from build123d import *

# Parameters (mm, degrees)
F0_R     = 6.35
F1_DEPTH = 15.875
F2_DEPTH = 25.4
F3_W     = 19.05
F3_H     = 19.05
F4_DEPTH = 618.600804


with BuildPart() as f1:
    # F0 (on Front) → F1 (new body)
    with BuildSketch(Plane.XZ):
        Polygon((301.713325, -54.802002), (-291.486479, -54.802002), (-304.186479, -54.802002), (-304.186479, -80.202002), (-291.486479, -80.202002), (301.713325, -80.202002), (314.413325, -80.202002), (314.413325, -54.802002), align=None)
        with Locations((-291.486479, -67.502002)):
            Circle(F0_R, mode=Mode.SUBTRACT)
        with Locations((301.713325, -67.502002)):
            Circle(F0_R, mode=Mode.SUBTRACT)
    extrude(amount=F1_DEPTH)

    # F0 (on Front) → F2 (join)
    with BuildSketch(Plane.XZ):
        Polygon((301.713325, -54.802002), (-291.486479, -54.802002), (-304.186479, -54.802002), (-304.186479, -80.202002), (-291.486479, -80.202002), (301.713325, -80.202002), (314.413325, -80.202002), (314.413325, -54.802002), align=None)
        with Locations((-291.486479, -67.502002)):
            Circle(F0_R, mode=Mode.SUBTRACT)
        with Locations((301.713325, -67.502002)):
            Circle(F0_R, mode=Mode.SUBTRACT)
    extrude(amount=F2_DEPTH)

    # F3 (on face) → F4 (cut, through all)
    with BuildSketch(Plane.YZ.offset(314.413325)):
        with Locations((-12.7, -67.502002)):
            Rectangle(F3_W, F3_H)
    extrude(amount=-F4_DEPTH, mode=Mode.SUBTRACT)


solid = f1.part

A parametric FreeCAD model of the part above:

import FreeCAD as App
import Part
import Sketcher

V = App.Vector
Q = App.Units.Quantity

doc = App.newDocument("Part")
body = doc.addObject("PartDesign::Body", "Body")

sketch1 = body.newObject("Sketcher::SketchObject", "Sketch")
sketch1.AttachmentSupport = (doc.getObject("XZ_Plane"), [""])
sketch1.MapMode = "FlatFace"
sketch1.addGeometry(Part.LineSegment(V(-304, -55, 0), V(-304, -80, 0)), False)
sketch1.addGeometry(Part.LineSegment(V(-304, -80, 0), V(314, -80, 0)), False)
sketch1.addGeometry(Part.LineSegment(V(314, -80, 0), V(314, -55, 0)), False)
sketch1.addGeometry(Part.LineSegment(V(314, -55, 0), V(-304, -55, 0)), False)
sketch1.addGeometry(Part.Circle(V(-291, -68, 0), V(0, 0, 1), 6), False)
sketch1.addGeometry(Part.Circle(V(302, -68, 0), V(0, 0, 1), 6), False)
sketch1.addConstraint(Sketcher.Constraint("Coincident", 0, 2, 1, 1))
sketch1.addConstraint(Sketcher.Constraint("Coincident", 1, 2, 2, 1))
sketch1.addConstraint(Sketcher.Constraint("Coincident", 2, 2, 3, 1))
sketch1.addConstraint(Sketcher.Constraint("Coincident", 3, 2, 0, 1))
sketch1.addConstraint(Sketcher.Constraint("Vertical", 0))
sketch1.addConstraint(Sketcher.Constraint("Horizontal", 1))
sketch1.addConstraint(Sketcher.Constraint("Vertical", 2))
sketch1.addConstraint(Sketcher.Constraint("Horizontal", 3))
sketch1.addConstraint(Sketcher.Constraint("Equal", 4, 5))
sketch1.addConstraint(Sketcher.Constraint("Horizontal", 4, 3, 5, 3))
sketch1.addConstraint(Sketcher.Constraint("Diameter", 4, Q("0.5 in")))
sketch1.addConstraint(Sketcher.Constraint("DistanceY", 0, 2, 0, 1, Q("1 in")))
sketch1.addConstraint(Sketcher.Constraint("DistanceX", 0, 2, 4, 3, Q("0.5 in")))
sketch1.addConstraint(Sketcher.Constraint("DistanceY", 0, 2, 4, 3, Q("0.5 in")))
sketch1.addConstraint(Sketcher.Constraint("DistanceX", 5, 3, 1, 2, Q("0.5 in")))
sketch1.addConstraint(Sketcher.Constraint("DistanceY", 0, 2, -1, 1, 80.202002))
sketch1.addConstraint(Sketcher.Constraint("DistanceX", 1, 1, 1, 2, 618.599804))
sketch1.addConstraint(Sketcher.Constraint("DistanceX", 4, 3, -1, 1, 291.486479))
pad1 = body.newObject("PartDesign::Pad", "Pad")
pad1.Profile = sketch1
pad1.Length = Q("0.625 in")

sketch2 = body.newObject("Sketcher::SketchObject", "Sketch001")
sketch2.AttachmentSupport = (doc.getObject("XZ_Plane"), [""])
sketch2.MapMode = "FlatFace"
sketch2.addGeometry(Part.LineSegment(V(-304, -55, 0), V(-304, -80, 0)), False)
sketch2.addGeometry(Part.LineSegment(V(-304, -80, 0), V(314, -80, 0)), False)
sketch2.addGeometry(Part.LineSegment(V(314, -80, 0), V(314, -55, 0)), False)
sketch2.addGeometry(Part.LineSegment(V(314, -55, 0), V(-304, -55, 0)), False)
sketch2.addGeometry(Part.Circle(V(-291, -68, 0), V(0, 0, 1), 6), False)
sketch2.addGeometry(Part.Circle(V(302, -68, 0), V(0, 0, 1), 6), False)
sketch2.addConstraint(Sketcher.Constraint("Coincident", 0, 2, 1, 1))
sketch2.addConstraint(Sketcher.Constraint("Coincident", 1, 2, 2, 1))
sketch2.addConstraint(Sketcher.Constraint("Coincident", 2, 2, 3, 1))
sketch2.addConstraint(Sketcher.Constraint("Coincident", 3, 2, 0, 1))
sketch2.addConstraint(Sketcher.Constraint("Vertical", 0))
sketch2.addConstraint(Sketcher.Constraint("Horizontal", 1))
sketch2.addConstraint(Sketcher.Constraint("Vertical", 2))
sketch2.addConstraint(Sketcher.Constraint("Horizontal", 3))
sketch2.addConstraint(Sketcher.Constraint("Equal", 4, 5))
sketch2.addConstraint(Sketcher.Constraint("Horizontal", 4, 3, 5, 3))
sketch2.addConstraint(Sketcher.Constraint("Diameter", 4, Q("0.5 in")))
sketch2.addConstraint(Sketcher.Constraint("DistanceY", 0, 2, 0, 1, Q("1 in")))
sketch2.addConstraint(Sketcher.Constraint("DistanceX", 0, 2, 4, 3, Q("0.5 in")))
sketch2.addConstraint(Sketcher.Constraint("DistanceY", 0, 2, 4, 3, Q("0.5 in")))
sketch2.addConstraint(Sketcher.Constraint("DistanceX", 5, 3, 1, 2, Q("0.5 in")))
sketch2.addConstraint(Sketcher.Constraint("DistanceY", 0, 2, -1, 1, 80.202002))
sketch2.addConstraint(Sketcher.Constraint("DistanceX", 1, 1, 1, 2, 618.599804))
sketch2.addConstraint(Sketcher.Constraint("DistanceX", 4, 3, -1, 1, 291.486479))
pad2 = body.newObject("PartDesign::Pad", "Pad001")
pad2.Profile = sketch2
pad2.Length = Q("1 in")

sketch3 = body.newObject("Sketcher::SketchObject", "Sketch002")
sketch3.AttachmentSupport = (doc.getObject("YZ_Plane"), [""])
sketch3.MapMode = "FlatFace"
sketch3.AttachmentOffset = App.Placement(V(0, 0, 314.413325), App.Rotation())
sketch3.addGeometry(Part.LineSegment(V(-22, -58, 0), V(-22, -77, 0)), False)
sketch3.addGeometry(Part.LineSegment(V(-22, -77, 0), V(-3, -77, 0)), False)
sketch3.addGeometry(Part.LineSegment(V(-3, -77, 0), V(-3, -58, 0)), False)
sketch3.addGeometry(Part.LineSegment(V(-3, -58, 0), V(-22, -58, 0)), False)
sketch3.addConstraint(Sketcher.Constraint("Coincident", 0, 2, 1, 1))
sketch3.addConstraint(Sketcher.Constraint("Coincident", 1, 2, 2, 1))
sketch3.addConstraint(Sketcher.Constraint("Coincident", 2, 2, 3, 1))
sketch3.addConstraint(Sketcher.Constraint("Coincident", 3, 2, 0, 1))
sketch3.addConstraint(Sketcher.Constraint("Vertical", 0))
sketch3.addConstraint(Sketcher.Constraint("Horizontal", 1))
sketch3.addConstraint(Sketcher.Constraint("Vertical", 2))
sketch3.addConstraint(Sketcher.Constraint("Horizontal", 3))
sketch3.addConstraint(Sketcher.Constraint("Equal", 3, 0))
sketch3.addConstraint(Sketcher.Constraint("DistanceX", 1, 1, 1, 2, Q("0.75 in")))
sketch3.addConstraint(Sketcher.Constraint("DistanceX", 0, 2, -1, 1, Q("0.875 in")))
sketch3.addConstraint(Sketcher.Constraint("DistanceY", 0, 2, -1, 1, 77.027002))
pocket1 = body.newObject("PartDesign::Pocket", "Pocket")
pocket1.Profile = sketch3
pocket1.Type = "ThroughAll"

doc.recompute()
